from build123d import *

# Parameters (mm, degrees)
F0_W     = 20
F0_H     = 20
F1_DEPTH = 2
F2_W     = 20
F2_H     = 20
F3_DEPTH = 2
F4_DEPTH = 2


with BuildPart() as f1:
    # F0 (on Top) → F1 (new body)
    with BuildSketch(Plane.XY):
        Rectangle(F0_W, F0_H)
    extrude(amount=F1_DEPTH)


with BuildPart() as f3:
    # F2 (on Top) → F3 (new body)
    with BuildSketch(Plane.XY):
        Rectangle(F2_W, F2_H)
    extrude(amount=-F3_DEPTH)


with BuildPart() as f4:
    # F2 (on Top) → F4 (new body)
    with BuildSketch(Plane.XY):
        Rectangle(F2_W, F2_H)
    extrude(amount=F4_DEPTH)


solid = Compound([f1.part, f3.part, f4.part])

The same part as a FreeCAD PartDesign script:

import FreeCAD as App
import Part
import Sketcher

V = App.Vector

doc = App.newDocument("Part")
body = doc.addObject("PartDesign::Body", "Body")

sketch1 = body.newObject("Sketcher::SketchObject", "Sketch")
sketch1.AttachmentSupport = (doc.getObject("XY_Plane"), [""])
sketch1.MapMode = "FlatFace"
sketch1.addGeometry([
    Part.LineSegment(V(-10, 10, 0), V(-10, -10, 0)),
    Part.LineSegment(V(-10, -10, 0), V(10, -10, 0)),
    Part.LineSegment(V(10, -10, 0), V(10, 10, 0)),
    Part.LineSegment(V(10, 10, 0), V(-10, 10, 0)),
], False)
sketch1.addConstraint([
    Sketcher.Constraint("Coincident", 0, 2, 1, 1),
    Sketcher.Constraint("Coincident", 1, 2, 2, 1),
    Sketcher.Constraint("Coincident", 2, 2, 3, 1),
    Sketcher.Constraint("Coincident", 3, 2, 0, 1),
    Sketcher.Constraint("Vertical", 0),
    Sketcher.Constraint("Horizontal", 1),
    Sketcher.Constraint("Vertical", 2),
    Sketcher.Constraint("Horizontal", 3),
    Sketcher.Constraint("Symmetric", 0, 2, 2, 2, -1, 1),
    Sketcher.Constraint("Equal", 3, 0),
    Sketcher.Constraint("DistanceX", 1, 1, 1, 2, 20.0),
])
pad1 = body.newObject("PartDesign::Pad", "Pad")
pad1.Profile = sketch1
pad1.Length = 2
body2 = doc.addObject("PartDesign::Body", "Body001")

sketch2 = body2.newObject("Sketcher::SketchObject", "Sketch001")
sketch2.AttachmentSupport = (doc.getObject("XY_Plane001"), [""])
sketch2.MapMode = "FlatFace"
sketch2.addGeometry([
    Part.LineSegment(V(-10, 10, 0), V(-10, -10, 0)),
    Part.LineSegment(V(-10, -10, 0), V(10, -10, 0)),
    Part.LineSegment(V(10, -10, 0), V(10, 10, 0)),
    Part.LineSegment(V(10, 10, 0), V(-10, 10, 0)),
], False)
sketch2.addConstraint([
    Sketcher.Constraint("Coincident", 0, 2, 1, 1),
    Sketcher.Constraint("Coincident", 1, 2, 2, 1),
    Sketcher.Constraint("Coincident", 2, 2, 3, 1),
    Sketcher.Constraint("Coincident", 3, 2, 0, 1),
    Sketcher.Constraint("Vertical", 0),
    Sketcher.Constraint("Horizontal", 1),
    Sketcher.Constraint("Vertical", 2),
    Sketcher.Constraint("Horizontal", 3),
    Sketcher.Constraint("Symmetric", 0, 2, 2, 2, -1, 1),
    Sketcher.Constraint("Equal", 3, 0),
    Sketcher.Constraint("DistanceX", 1, 1, 1, 2, 20.0),
])
pad2 = body2.newObject("PartDesign::Pad", "Pad001")
pad2.Profile = sketch2
pad2.Length = 2
pad2.Reversed = True
body3 = doc.addObject("PartDesign::Body", "Body002")

sketch3 = body3.newObject("Sketcher::SketchObject", "Sketch002")
sketch3.AttachmentSupport = (doc.getObject("XY_Plane002"), [""])
sketch3.MapMode = "FlatFace"
sketch3.addGeometry([
    Part.LineSegment(V(-10, 10, 0), V(-10, -10, 0)),
    Part.LineSegment(V(-10, -10, 0), V(10, -10, 0)),
    Part.LineSegment(V(10, -10, 0), V(10, 10, 0)),
    Part.LineSegment(V(10, 10, 0), V(-10, 10, 0)),
], False)
sketch3.addConstraint([
    Sketcher.Constraint("Coincident", 0, 2, 1, 1),
    Sketcher.Constraint("Coincident", 1, 2, 2, 1),
    Sketcher.Constraint("Coincident", 2, 2, 3, 1),
    Sketcher.Constraint("Coincident", 3, 2, 0, 1),
    Sketcher.Constraint("Vertical", 0),
    Sketcher.Constraint("Horizontal", 1),
    Sketcher.Constraint("Vertical", 2),
    Sketcher.Constraint("Horizontal", 3),
    Sketcher.Constraint("Symmetric", 0, 2, 2, 2, -1, 1),
    Sketcher.Constraint("Equal", 3, 0),
    Sketcher.Constraint("DistanceX", 1, 1, 1, 2, 20.0),
])
pad3 = body3.newObject("PartDesign::Pad", "Pad002")
pad3.Profile = sketch3
pad3.Length = 2

doc.recompute()
